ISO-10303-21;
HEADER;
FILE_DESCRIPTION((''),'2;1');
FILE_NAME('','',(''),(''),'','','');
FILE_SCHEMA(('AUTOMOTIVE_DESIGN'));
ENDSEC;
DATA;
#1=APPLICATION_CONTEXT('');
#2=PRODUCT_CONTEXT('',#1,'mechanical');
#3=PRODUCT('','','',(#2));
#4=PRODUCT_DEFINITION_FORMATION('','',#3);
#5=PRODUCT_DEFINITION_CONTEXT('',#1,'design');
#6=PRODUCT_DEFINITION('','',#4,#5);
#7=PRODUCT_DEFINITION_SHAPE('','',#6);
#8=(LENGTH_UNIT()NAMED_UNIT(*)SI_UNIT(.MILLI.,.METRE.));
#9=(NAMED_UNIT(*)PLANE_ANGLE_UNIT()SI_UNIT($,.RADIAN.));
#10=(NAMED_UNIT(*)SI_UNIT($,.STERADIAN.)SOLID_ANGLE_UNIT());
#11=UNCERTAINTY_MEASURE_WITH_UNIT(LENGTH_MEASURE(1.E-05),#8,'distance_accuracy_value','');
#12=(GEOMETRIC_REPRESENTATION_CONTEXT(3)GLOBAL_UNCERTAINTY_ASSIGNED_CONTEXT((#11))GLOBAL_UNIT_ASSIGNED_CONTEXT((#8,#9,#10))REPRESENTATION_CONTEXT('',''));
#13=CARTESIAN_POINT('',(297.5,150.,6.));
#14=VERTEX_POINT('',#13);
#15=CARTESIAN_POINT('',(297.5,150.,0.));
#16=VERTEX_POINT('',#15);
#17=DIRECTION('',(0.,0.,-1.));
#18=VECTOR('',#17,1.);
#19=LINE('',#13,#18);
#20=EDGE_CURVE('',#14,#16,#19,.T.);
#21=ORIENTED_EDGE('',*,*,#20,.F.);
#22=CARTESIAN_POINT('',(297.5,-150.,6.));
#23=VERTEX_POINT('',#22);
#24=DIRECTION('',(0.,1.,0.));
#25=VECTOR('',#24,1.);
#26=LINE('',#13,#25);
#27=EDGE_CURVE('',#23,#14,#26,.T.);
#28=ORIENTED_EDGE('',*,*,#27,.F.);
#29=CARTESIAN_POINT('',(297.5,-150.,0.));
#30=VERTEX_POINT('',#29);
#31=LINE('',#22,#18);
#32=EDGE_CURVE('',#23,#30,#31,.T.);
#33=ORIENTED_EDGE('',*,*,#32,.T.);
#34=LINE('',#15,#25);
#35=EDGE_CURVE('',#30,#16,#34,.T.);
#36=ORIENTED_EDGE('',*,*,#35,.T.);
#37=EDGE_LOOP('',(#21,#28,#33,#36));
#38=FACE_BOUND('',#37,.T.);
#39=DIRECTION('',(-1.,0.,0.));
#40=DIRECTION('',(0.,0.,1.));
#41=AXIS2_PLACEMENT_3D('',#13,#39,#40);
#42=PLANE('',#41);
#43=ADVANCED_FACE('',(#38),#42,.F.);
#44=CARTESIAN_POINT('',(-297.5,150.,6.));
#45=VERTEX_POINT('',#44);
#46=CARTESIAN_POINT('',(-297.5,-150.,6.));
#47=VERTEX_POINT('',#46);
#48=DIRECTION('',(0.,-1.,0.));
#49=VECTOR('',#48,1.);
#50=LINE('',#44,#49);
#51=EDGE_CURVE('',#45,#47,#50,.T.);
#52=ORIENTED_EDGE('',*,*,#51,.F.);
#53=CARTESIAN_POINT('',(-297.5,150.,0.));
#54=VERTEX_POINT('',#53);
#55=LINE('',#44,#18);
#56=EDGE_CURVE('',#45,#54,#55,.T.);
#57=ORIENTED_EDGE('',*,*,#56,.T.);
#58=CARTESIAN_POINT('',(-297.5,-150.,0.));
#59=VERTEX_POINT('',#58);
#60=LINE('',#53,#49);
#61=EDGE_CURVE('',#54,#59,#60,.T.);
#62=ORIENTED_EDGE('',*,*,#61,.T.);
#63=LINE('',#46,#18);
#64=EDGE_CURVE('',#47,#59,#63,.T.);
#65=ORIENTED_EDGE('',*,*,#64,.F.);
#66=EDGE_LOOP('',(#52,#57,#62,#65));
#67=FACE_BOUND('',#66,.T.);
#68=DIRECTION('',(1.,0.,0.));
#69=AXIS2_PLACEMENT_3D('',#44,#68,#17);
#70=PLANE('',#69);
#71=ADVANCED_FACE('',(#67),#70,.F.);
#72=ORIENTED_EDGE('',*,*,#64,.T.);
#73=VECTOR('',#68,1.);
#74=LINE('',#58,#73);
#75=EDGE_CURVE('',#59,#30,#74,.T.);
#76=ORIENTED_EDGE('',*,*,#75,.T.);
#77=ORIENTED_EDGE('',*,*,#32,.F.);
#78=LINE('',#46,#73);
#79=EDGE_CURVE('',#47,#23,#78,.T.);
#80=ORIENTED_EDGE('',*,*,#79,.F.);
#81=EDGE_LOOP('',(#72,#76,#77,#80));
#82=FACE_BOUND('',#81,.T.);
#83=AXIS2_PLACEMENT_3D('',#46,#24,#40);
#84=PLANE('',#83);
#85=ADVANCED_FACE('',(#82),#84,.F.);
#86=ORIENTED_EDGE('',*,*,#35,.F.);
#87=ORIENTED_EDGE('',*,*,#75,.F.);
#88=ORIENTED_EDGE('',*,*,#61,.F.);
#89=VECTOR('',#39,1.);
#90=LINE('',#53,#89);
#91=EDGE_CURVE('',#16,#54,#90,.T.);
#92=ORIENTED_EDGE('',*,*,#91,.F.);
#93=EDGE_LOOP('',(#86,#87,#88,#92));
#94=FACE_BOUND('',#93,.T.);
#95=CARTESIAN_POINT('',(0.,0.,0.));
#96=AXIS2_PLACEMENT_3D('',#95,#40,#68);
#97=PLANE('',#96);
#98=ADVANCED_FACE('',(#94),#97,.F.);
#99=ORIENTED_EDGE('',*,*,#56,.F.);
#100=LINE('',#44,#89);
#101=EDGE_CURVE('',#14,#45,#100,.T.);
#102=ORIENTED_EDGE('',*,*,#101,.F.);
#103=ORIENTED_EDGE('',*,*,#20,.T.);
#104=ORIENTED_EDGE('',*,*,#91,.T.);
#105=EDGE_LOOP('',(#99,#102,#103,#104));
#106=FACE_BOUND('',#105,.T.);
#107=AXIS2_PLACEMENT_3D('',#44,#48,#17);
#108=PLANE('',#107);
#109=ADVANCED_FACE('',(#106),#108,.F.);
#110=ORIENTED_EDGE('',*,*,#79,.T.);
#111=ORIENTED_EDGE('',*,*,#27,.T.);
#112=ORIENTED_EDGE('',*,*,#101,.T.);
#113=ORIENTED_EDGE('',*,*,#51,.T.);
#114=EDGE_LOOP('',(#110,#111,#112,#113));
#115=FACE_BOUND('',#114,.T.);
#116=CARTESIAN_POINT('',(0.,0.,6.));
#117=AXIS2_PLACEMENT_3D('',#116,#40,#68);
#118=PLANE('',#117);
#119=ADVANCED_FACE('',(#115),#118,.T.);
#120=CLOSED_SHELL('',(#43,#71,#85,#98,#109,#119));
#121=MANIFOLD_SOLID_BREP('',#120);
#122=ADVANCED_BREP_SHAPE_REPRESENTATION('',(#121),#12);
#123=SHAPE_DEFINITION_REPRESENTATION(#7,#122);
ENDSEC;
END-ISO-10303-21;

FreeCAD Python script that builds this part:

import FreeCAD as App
import Part
import Sketcher


def add_polygon(sketch, points):
    """Adds a closed chain of lines whose ends are joined by coincident constraints."""
    first, n = sketch.GeometryCount, len(points)
    for a, b in zip(points, points[1:] + points[:1]):
        sketch.addGeometry(Part.LineSegment(App.Vector(*a, 0), App.Vector(*b, 0)), False)
    for i in range(n):
        sketch.addConstraint(Sketcher.Constraint("Coincident", first + i, 2, first + (i + 1) % n, 1))

doc = App.newDocument("Part")
body = doc.addObject("PartDesign::Body", "Body")

sketch1 = body.newObject("Sketcher::SketchObject", "Sketch")
sketch1.AttachmentSupport = (doc.getObject("XY_Plane"), [""])
sketch1.MapMode = "FlatFace"
add_polygon(sketch1, [(-298, 150), (-298, -150), (298, -150), (298, 150)])
sketch1.addConstraint([
    Sketcher.Constraint("Vertical", 0),
    Sketcher.Constraint("Horizontal", 1),
    Sketcher.Constraint("Vertical", 2),
    Sketcher.Constraint("Horizontal", 3),
    Sketcher.Constraint("Symmetric", 0, 2, 2, 2, -1, 1),
    Sketcher.Constraint("DistanceX", 1, 1, 1, 2, 595.0),
    Sketcher.Constraint("DistanceY", 0, 2, 0, 1, 300.0),
])
pad1 = body.newObject("PartDesign::Pad", "Pad")
pad1.Profile = sketch1
pad1.Length = 6

doc.recompute()
